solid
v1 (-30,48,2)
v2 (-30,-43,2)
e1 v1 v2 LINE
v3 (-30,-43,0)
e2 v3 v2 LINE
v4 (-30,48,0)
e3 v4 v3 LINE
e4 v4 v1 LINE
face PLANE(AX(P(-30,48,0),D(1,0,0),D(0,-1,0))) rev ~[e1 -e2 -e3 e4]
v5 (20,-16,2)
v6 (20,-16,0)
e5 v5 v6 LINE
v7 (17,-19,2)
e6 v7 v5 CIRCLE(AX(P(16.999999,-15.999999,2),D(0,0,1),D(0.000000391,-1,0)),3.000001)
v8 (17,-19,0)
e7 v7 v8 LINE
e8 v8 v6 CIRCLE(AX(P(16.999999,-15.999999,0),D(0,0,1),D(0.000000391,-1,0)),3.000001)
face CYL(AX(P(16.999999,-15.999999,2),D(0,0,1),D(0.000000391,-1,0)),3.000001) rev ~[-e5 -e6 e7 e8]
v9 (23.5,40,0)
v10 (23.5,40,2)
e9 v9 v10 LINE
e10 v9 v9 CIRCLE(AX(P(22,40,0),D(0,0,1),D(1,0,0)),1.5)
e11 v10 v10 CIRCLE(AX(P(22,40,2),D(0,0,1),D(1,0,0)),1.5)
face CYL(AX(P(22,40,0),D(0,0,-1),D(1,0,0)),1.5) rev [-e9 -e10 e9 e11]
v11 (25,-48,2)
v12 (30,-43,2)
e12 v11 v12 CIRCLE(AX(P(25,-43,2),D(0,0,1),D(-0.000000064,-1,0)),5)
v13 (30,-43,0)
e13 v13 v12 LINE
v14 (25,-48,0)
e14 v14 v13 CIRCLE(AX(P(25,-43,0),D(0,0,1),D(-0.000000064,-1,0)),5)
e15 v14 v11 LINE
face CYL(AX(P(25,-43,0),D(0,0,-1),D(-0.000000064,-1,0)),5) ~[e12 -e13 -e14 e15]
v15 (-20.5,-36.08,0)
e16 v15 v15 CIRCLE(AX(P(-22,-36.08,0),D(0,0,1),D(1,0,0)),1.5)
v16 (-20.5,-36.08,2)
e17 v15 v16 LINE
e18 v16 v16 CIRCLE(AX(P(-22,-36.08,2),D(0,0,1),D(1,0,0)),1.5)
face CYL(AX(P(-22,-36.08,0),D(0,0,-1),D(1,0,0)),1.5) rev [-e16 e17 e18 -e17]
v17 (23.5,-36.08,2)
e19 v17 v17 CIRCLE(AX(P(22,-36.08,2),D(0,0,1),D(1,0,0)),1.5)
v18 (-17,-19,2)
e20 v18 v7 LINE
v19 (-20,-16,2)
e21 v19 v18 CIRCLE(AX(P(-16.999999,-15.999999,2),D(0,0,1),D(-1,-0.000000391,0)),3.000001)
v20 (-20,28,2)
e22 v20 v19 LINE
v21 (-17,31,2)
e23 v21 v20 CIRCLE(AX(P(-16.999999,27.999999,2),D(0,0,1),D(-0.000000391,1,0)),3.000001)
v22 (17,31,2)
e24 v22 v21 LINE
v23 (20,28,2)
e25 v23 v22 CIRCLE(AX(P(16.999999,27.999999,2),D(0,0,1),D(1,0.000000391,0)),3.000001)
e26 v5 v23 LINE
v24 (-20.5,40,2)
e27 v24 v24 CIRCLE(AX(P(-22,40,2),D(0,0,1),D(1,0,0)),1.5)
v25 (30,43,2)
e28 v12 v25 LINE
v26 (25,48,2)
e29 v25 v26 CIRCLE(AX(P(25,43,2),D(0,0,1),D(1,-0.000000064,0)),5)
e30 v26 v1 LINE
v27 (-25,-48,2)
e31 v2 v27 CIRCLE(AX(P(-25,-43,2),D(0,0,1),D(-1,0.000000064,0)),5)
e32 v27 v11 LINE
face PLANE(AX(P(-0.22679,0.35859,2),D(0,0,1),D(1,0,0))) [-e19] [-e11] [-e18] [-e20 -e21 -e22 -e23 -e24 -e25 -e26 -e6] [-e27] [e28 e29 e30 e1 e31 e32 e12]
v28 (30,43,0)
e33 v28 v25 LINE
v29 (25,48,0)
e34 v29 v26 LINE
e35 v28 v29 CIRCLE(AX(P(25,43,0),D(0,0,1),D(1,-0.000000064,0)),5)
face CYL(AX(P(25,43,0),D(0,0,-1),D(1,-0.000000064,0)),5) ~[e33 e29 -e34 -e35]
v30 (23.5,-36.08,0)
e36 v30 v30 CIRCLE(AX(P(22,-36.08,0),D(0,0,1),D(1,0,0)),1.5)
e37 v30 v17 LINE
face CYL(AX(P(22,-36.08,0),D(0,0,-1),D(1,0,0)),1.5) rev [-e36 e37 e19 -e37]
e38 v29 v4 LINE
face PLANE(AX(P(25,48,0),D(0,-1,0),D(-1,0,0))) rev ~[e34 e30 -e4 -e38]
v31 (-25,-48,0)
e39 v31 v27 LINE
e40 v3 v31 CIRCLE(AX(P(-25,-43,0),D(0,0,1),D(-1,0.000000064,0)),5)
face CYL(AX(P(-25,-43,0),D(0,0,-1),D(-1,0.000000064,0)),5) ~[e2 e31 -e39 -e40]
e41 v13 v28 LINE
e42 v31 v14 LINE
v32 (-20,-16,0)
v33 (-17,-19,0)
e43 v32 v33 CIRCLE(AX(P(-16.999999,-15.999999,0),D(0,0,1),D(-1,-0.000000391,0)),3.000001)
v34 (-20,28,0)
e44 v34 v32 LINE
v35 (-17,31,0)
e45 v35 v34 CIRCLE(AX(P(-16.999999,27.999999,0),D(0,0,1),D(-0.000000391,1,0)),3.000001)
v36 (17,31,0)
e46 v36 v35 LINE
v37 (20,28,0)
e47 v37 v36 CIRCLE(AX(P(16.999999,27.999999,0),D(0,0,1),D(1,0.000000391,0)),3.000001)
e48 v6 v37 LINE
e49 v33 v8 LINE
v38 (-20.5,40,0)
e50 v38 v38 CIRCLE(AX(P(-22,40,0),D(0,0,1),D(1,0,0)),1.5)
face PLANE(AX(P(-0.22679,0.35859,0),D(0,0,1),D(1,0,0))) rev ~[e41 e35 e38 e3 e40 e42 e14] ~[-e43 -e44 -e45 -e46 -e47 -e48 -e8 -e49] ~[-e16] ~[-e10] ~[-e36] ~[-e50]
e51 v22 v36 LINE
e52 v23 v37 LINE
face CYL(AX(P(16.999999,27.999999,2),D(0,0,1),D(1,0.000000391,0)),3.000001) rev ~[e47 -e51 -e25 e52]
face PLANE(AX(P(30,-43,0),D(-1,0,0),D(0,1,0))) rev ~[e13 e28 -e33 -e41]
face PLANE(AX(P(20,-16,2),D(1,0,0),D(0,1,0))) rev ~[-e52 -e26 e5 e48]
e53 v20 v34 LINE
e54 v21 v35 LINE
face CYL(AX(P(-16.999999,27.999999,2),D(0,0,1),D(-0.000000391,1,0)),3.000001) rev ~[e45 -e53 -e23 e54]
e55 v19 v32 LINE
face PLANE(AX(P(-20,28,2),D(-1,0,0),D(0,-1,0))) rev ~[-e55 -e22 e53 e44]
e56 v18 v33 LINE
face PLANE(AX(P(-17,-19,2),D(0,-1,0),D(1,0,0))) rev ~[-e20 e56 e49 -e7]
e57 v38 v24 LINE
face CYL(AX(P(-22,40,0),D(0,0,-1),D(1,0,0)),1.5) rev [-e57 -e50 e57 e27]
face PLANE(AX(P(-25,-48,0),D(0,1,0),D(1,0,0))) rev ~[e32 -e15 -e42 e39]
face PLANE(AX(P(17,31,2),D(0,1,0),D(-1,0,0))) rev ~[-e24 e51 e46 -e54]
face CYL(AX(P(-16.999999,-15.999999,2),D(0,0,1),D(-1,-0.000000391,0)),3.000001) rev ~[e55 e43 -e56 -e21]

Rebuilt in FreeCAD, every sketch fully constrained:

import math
import FreeCAD as App
import Part
import Sketcher
Q = App.Units.Quantity

doc = App.newDocument("Part")
params = doc.addObject("Spreadsheet::Sheet", "Params")
for row, (alias, value) in enumerate([
    ("sketch1_diameter", "3 mm"),
    ("sketch1_radius", "5 mm"),
    ("sketch1_width", "50 mm"),
    ("sketch1_height", "86 mm"),
    ("pad1_length", "2 mm"),
    ("sketch2_radius", "3.000001 mm"),
    ("sketch2_width", "34 mm"),
    ("sketch2_height", "44 mm"),
], start=1):
    params.set(f"A{row}", alias)
    params.set(f"B{row}", "=" + value)
    params.setAlias(f"B{row}", alias)

body = doc.addObject("PartDesign::Body", "Body")

sketch1 = body.newObject("Sketcher::SketchObject", "Sketch")
sketch1.AttachmentSupport = (doc.getObject("XY_Plane"), [""])
sketch1.MapMode = "FlatFace"
sketch1.addGeometry(Part.LineSegment(App.Vector(-25, -48, 0), App.Vector(25, -48, 0)), False)
sketch1.addGeometry(Part.ArcOfCircle(Part.Circle(App.Vector(25, -43, 0), App.Vector(0, 0, 1), 5), math.radians(-90.000004), math.radians(0.000004)), False)
sketch1.addGeometry(Part.LineSegment(App.Vector(30, -43, 0), App.Vector(30, 43, 0)), False)
sketch1.addGeometry(Part.ArcOfCircle(Part.Circle(App.Vector(25, 43, 0), App.Vector(0, 0, 1), 5), math.radians(-0.000004), math.radians(90.000004)), False)
sketch1.addGeometry(Part.LineSegment(App.Vector(25, 48, 0), App.Vector(-30, 48, 0)), False)
sketch1.addGeometry(Part.LineSegment(App.Vector(-30, 48, 0), App.Vector(-30, -43, 0)), False)
sketch1.addGeometry(Part.ArcOfCircle(Part.Circle(App.Vector(-25, -43, 0), App.Vector(0, 0, 1), 5), math.radians(179.999996), math.radians(270.000004)), False)
sketch1.addGeometry(Part.Circle(App.Vector(-22, -36.08, 0), App.Vector(0, 0, 1), 1.5), False)
sketch1.addGeometry(Part.Circle(App.Vector(22, -36.08, 0), App.Vector(0, 0, 1), 1.5), False)
sketch1.addGeometry(Part.Circle(App.Vector(-22, 40, 0), App.Vector(0, 0, 1), 1.5), False)
sketch1.addGeometry(Part.Circle(App.Vector(22, 40, 0), App.Vector(0, 0, 1), 1.5), False)
sketch1.addConstraint(Sketcher.Constraint("Tangent", 0, 2, 1, 1))
sketch1.addConstraint(Sketcher.Constraint("Tangent", 1, 2, 2, 1))
sketch1.addConstraint(Sketcher.Constraint("Tangent", 2, 2, 3, 1))
sketch1.addConstraint(Sketcher.Constraint("Tangent", 3, 2, 4, 1))
sketch1.addConstraint(Sketcher.Constraint("Coincident", 4, 2, 5, 1))
sketch1.addConstraint(Sketcher.Constraint("Tangent", 5, 2, 6, 1))
sketch1.addConstraint(Sketcher.Constraint("Tangent", 6, 2, 0, 1))
sketch1.addConstraint(Sketcher.Constraint("Horizontal", 0))
sketch1.addConstraint(Sketcher.Constraint("Vertical", 2))
sketch1.addConstraint(Sketcher.Constraint("Horizontal", 4))
sketch1.addConstraint(Sketcher.Constraint("Vertical", 5))
sketch1.addConstraint(Sketcher.Constraint("Equal", 1, 3))
sketch1.addConstraint(Sketcher.Constraint("Equal", 3, 6))
sketch1.addConstraint(Sketcher.Constraint("Equal", 7, 8))
sketch1.addConstraint(Sketcher.Constraint("Equal", 8, 9))
sketch1.addConstraint(Sketcher.Constraint("Equal", 9, 10))
sketch1.addConstraint(Sketcher.Constraint("Symmetric", 3, 3, 6, 3, -1, 1))
sketch1.addConstraint(Sketcher.Constraint("Symmetric", 7, 3, 8, 3, -2))
sketch1.addConstraint(Sketcher.Constraint("Symmetric", 9, 3, 10, 3, -2))
sketch1.addConstraint(Sketcher.Constraint("Vertical", 7, 3, 9, 3))
sketch1.addConstraint(Sketcher.Constraint("Diameter", 7, Q("3 mm")))
sketch1.addConstraint(Sketcher.Constraint("Radius", 1, Q("5 mm")))
sketch1.addConstraint(Sketcher.Constraint("DistanceX", 0, 1, 0, 2, Q("50 mm")))
sketch1.addConstraint(Sketcher.Constraint("DistanceY", 2, 1, 2, 2, Q("86 mm")))
sketch1.addConstraint(Sketcher.Constraint("DistanceX", 7, 3, -1, 1, Q("22 mm")))
sketch1.addConstraint(Sketcher.Constraint("DistanceY", -1, 1, 9, 3, Q("40 mm")))
sketch1.addConstraint(Sketcher.Constraint("DistanceY", 7, 3, -1, 1, Q("36.08 mm")))
sketch1.setExpression("Constraints[20]", "Params.sketch1_diameter")
sketch1.setExpression("Constraints[21]", "Params.sketch1_radius")
sketch1.setExpression("Constraints[22]", "Params.sketch1_width")
sketch1.setExpression("Constraints[23]", "Params.sketch1_height")
pad1 = body.newObject("PartDesign::Pad", "Pad")
pad1.Profile = sketch1
pad1.setExpression("Length", "Params.pad1_length")

sketch2 = body.newObject("Sketcher::SketchObject", "Sketch001")
sketch2.AttachmentSupport = (doc.getObject("XY_Plane"), [""])
sketch2.MapMode = "FlatFace"
sketch2.AttachmentOffset = App.Placement(App.Vector(0, 0, 2), App.Rotation())
sketch2.addGeometry(Part.ArcOfCircle(Part.Circle(App.Vector(16.999999, 27.999999, 0), App.Vector(0, 0, 1), 3.000001), math.radians(0.000022), math.radians(89.999978)), False)
sketch2.addGeometry(Part.LineSegment(App.Vector(17, 31, 0), App.Vector(-17, 31, 0)), False)
sketch2.addGeometry(Part.ArcOfCircle(Part.Circle(App.Vector(-16.999999, 27.999999, 0), App.Vector(0, 0, 1), 3.000001), math.radians(90.000022), math.radians(179.999978)), False)
sketch2.addGeometry(Part.LineSegment(App.Vector(-20, 28, 0), App.Vector(-20, -16, 0)), False)
sketch2.addGeometry(Part.ArcOfCircle(Part.Circle(App.Vector(-16.999999, -15.999999, 0), App.Vector(0, 0, 1), 3.000001), math.radians(-179.999978), math.radians(-90.000022)), False)
sketch2.addGeometry(Part.LineSegment(App.Vector(-17, -19, 0), App.Vector(17, -19, 0)), False)
sketch2.addGeometry(Part.ArcOfCircle(Part.Circle(App.Vector(16.999999, -15.999999, 0), App.Vector(0, 0, 1), 3.000001), math.radians(-89.999978), math.radians(-0.000022)), False)
sketch2.addGeometry(Part.LineSegment(App.Vector(20, -16, 0), App.Vector(20, 28, 0)), False)
sketch2.addConstraint(Sketcher.Constraint("Tangent", 0, 2, 1, 1))
sketch2.addConstraint(Sketcher.Constraint("Tangent", 1, 2, 2, 1))
sketch2.addConstraint(Sketcher.Constraint("Tangent", 2, 2, 3, 1))
sketch2.addConstraint(Sketcher.Constraint("Tangent", 3, 2, 4, 1))
sketch2.addConstraint(Sketcher.Constraint("Tangent", 4, 2, 5, 1))
sketch2.addConstraint(Sketcher.Constraint("Tangent", 5, 2, 6, 1))
sketch2.addConstraint(Sketcher.Constraint("Tangent", 6, 2, 7, 1))
sketch2.addConstraint(Sketcher.Constraint("Tangent", 7, 2, 0, 1))
sketch2.addConstraint(Sketcher.Constraint("Horizontal", 1))
sketch2.addConstraint(Sketcher.Constraint("Vertical", 3))
sketch2.addConstraint(Sketcher.Constraint("Horizontal", 5))
sketch2.addConstraint(Sketcher.Constraint("Vertical", 7))
sketch2.addConstraint(Sketcher.Constraint("Equal", 0, 2))
sketch2.addConstraint(Sketcher.Constraint("Equal", 2, 4))
sketch2.addConstraint(Sketcher.Constraint("Equal", 4, 6))
sketch2.addConstraint(Sketcher.Constraint("Radius", 0, Q("3.000001 mm")))
sketch2.addConstraint(Sketcher.Constraint("DistanceX", 1, 2, 1, 1, Q("34 mm")))
sketch2.addConstraint(Sketcher.Constraint("DistanceY", 3, 2, 3, 1, Q("44 mm")))
sketch2.addConstraint(Sketcher.Constraint("DistanceX", -1, 1, 0, 3, Q("16.999999 mm")))
sketch2.addConstraint(Sketcher.Constraint("DistanceY", -1, 1, 0, 3, Q("27.999999 mm")))
sketch2.setExpression("Constraints[15]", "Params.sketch2_radius")
sketch2.setExpression("Constraints[16]", "Params.sketch2_width")
sketch2.setExpression("Constraints[17]", "Params.sketch2_height")
pocket1 = body.newObject("PartDesign::Pocket", "Pocket")
pocket1.Profile = sketch2
pocket1.Type = "ThroughAll"

doc.recompute()
